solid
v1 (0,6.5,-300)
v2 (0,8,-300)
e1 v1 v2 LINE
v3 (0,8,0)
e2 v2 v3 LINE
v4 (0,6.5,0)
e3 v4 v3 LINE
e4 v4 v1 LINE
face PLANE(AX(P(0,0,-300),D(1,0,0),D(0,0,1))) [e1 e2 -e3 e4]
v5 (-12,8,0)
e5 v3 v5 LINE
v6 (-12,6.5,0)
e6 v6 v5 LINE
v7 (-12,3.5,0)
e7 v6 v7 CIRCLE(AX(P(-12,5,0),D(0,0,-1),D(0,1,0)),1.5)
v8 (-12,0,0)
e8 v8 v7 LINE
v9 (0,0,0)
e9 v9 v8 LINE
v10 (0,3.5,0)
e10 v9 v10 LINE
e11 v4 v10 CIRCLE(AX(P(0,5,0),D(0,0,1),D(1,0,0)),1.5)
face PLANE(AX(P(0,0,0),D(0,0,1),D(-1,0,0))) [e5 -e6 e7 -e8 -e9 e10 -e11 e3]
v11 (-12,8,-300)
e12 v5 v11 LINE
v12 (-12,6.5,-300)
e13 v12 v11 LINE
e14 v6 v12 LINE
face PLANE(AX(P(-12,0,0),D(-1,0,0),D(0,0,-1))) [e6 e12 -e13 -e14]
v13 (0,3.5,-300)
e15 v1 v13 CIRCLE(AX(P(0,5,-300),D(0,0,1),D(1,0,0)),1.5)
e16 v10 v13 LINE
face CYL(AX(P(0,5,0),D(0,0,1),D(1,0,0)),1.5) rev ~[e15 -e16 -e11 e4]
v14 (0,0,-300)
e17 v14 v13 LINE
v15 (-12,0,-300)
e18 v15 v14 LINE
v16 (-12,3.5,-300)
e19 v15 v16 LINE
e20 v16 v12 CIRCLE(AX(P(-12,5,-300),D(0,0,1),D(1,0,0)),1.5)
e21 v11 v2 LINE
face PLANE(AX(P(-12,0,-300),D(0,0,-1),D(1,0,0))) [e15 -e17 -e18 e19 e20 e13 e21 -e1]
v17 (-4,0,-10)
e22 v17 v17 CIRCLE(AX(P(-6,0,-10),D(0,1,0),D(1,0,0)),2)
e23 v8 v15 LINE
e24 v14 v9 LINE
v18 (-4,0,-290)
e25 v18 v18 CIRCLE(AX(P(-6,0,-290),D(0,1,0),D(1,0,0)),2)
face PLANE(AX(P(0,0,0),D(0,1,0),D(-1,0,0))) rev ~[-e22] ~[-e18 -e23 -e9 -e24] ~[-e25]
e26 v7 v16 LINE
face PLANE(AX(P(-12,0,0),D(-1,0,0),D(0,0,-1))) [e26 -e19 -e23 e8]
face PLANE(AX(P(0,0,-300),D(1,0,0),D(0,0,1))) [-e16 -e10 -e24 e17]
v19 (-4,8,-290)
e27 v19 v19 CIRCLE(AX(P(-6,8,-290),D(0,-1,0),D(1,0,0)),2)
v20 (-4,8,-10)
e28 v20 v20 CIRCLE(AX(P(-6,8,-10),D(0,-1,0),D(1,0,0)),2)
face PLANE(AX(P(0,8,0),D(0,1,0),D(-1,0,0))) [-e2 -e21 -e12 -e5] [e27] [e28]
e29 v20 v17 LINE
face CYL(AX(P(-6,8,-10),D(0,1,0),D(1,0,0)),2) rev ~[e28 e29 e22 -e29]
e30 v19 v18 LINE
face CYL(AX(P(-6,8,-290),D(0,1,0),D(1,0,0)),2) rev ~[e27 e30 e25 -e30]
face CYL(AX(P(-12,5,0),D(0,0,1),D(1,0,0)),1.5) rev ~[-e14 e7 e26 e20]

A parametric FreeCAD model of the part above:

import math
import FreeCAD as App
import Part
import Sketcher
Q = App.Units.Quantity


def add_polygon(sketch, points):
    """Adds a closed chain of lines whose ends are joined by coincident constraints."""
    first, n = sketch.GeometryCount, len(points)
    for a, b in zip(points, points[1:] + points[:1]):
        sketch.addGeometry(Part.LineSegment(App.Vector(*a, 0), App.Vector(*b, 0)), False)
    for i in range(n):
        sketch.addConstraint(Sketcher.Constraint("Coincident", first + i, 2, first + (i + 1) % n, 1))

doc = App.newDocument("Part")
body = doc.addObject("PartDesign::Body", "Body")

# Sketch on XZ plane
sketch1 = body.newObject("Sketcher::SketchObject", "Sketch")
sketch1.AttachmentSupport = (doc.getObject("XZ_Plane"), [""])
sketch1.MapMode = "FlatFace"
add_polygon(sketch1, [(-12, 0), (0, 0), (0, -300), (-12, -300)])  # lines 0-3
sketch1.addConstraint([
    Sketcher.Constraint("Horizontal", 0),
    Sketcher.Constraint("Vertical", 1),
    Sketcher.Constraint("Horizontal", 2),
    Sketcher.Constraint("Vertical", 3),
    Sketcher.Constraint("Coincident", 0, 2, -1, 1),
    Sketcher.Constraint("DistanceX", 0, 1, 0, 2, Q("12 mm")),
    Sketcher.Constraint("DistanceY", 1, 2, 1, 1, Q("300 mm")),
])
pad1 = body.newObject("PartDesign::Pad", "Pad")
pad1.Profile = sketch1
pad1.Length = 8
pad1.Reversed = True

# Sketch on XY plane
sketch2 = body.newObject("Sketcher::SketchObject", "Sketch001")
sketch2.AttachmentSupport = (doc.getObject("XY_Plane"), [""])
sketch2.MapMode = "FlatFace"
sketch2.addGeometry([
    Part.ArcOfCircle(Part.Circle(App.Vector(-12, 5, 0), App.Vector(0, 0, 1), 1.5), math.radians(-90), math.radians(90)),
    Part.LineSegment(App.Vector(-12, 6.5, 0), App.Vector(-12, 3.5, 0)),
    Part.LineSegment(App.Vector(0, 3.5, 0), App.Vector(0, 6.5, 0)),
    Part.ArcOfCircle(Part.Circle(App.Vector(0, 5, 0), App.Vector(0, 0, 1), 1.5), math.radians(90), math.radians(270)),
], False)
sketch2.addConstraint([
    Sketcher.Constraint("Coincident", 0, 1, 1, 2),
    Sketcher.Constraint("Coincident", 1, 1, 0, 2),
    Sketcher.Constraint("Coincident", 2, 1, 3, 2),
    Sketcher.Constraint("Coincident", 3, 1, 2, 2),
    Sketcher.Constraint("Vertical", 1),
    Sketcher.Constraint("Vertical", 2),
    Sketcher.Constraint("Equal", 0, 3),
    Sketcher.Constraint("PointOnObject", 3, 3, -2),
    Sketcher.Constraint("PointOnObject", 2, 1, -2),
    Sketcher.Constraint("Horizontal", 0, 3, 3, 3),
    Sketcher.Constraint("Radius", 0, Q("1.5 mm")),
    Sketcher.Constraint("DistanceX", 0, 3, -1, 1, Q("12 mm")),
    Sketcher.Constraint("DistanceY", -1, 1, 0, 3, Q("5 mm")),
    Sketcher.Constraint("DistanceX", 0, 1, -1, 1, Q("12 mm")),
])
pocket1 = body.newObject("PartDesign::Pocket", "Pocket")
pocket1.Profile = sketch2
pocket1.Type = "ThroughAll"

# Sketch on XZ plane
sketch3 = body.newObject("Sketcher::SketchObject", "Sketch002")
sketch3.AttachmentSupport = (doc.getObject("XZ_Plane"), [""])
sketch3.MapMode = "FlatFace"
sketch3.AttachmentOffset = App.Placement(App.Vector(0, 0, -8), App.Rotation())
sketch3.addGeometry([
    Part.Circle(App.Vector(-6, -10, 0), App.Vector(0, 0, 1), 2),
    Part.Circle(App.Vector(-6, -290, 0), App.Vector(0, 0, 1), 2),
], False)
sketch3.addConstraint([
    Sketcher.Constraint("Equal", 0, 1),
    Sketcher.Constraint("Vertical", 0, 3, 1, 3),
    Sketcher.Constraint("Diameter", 0, Q("4 mm")),
    Sketcher.Constraint("DistanceY", 0, 3, -1, 1, Q("10 mm")),
    Sketcher.Constraint("DistanceX", 0, 3, -1, 1, Q("6 mm")),
    Sketcher.Constraint("DistanceY", 1, 3, -1, 1, Q("290 mm")),
])
pocket2 = body.newObject("PartDesign::Pocket", "Pocket001")
pocket2.Profile = sketch3
pocket2.Type = "ThroughAll"
pocket2.Reversed = True

doc.recompute()
